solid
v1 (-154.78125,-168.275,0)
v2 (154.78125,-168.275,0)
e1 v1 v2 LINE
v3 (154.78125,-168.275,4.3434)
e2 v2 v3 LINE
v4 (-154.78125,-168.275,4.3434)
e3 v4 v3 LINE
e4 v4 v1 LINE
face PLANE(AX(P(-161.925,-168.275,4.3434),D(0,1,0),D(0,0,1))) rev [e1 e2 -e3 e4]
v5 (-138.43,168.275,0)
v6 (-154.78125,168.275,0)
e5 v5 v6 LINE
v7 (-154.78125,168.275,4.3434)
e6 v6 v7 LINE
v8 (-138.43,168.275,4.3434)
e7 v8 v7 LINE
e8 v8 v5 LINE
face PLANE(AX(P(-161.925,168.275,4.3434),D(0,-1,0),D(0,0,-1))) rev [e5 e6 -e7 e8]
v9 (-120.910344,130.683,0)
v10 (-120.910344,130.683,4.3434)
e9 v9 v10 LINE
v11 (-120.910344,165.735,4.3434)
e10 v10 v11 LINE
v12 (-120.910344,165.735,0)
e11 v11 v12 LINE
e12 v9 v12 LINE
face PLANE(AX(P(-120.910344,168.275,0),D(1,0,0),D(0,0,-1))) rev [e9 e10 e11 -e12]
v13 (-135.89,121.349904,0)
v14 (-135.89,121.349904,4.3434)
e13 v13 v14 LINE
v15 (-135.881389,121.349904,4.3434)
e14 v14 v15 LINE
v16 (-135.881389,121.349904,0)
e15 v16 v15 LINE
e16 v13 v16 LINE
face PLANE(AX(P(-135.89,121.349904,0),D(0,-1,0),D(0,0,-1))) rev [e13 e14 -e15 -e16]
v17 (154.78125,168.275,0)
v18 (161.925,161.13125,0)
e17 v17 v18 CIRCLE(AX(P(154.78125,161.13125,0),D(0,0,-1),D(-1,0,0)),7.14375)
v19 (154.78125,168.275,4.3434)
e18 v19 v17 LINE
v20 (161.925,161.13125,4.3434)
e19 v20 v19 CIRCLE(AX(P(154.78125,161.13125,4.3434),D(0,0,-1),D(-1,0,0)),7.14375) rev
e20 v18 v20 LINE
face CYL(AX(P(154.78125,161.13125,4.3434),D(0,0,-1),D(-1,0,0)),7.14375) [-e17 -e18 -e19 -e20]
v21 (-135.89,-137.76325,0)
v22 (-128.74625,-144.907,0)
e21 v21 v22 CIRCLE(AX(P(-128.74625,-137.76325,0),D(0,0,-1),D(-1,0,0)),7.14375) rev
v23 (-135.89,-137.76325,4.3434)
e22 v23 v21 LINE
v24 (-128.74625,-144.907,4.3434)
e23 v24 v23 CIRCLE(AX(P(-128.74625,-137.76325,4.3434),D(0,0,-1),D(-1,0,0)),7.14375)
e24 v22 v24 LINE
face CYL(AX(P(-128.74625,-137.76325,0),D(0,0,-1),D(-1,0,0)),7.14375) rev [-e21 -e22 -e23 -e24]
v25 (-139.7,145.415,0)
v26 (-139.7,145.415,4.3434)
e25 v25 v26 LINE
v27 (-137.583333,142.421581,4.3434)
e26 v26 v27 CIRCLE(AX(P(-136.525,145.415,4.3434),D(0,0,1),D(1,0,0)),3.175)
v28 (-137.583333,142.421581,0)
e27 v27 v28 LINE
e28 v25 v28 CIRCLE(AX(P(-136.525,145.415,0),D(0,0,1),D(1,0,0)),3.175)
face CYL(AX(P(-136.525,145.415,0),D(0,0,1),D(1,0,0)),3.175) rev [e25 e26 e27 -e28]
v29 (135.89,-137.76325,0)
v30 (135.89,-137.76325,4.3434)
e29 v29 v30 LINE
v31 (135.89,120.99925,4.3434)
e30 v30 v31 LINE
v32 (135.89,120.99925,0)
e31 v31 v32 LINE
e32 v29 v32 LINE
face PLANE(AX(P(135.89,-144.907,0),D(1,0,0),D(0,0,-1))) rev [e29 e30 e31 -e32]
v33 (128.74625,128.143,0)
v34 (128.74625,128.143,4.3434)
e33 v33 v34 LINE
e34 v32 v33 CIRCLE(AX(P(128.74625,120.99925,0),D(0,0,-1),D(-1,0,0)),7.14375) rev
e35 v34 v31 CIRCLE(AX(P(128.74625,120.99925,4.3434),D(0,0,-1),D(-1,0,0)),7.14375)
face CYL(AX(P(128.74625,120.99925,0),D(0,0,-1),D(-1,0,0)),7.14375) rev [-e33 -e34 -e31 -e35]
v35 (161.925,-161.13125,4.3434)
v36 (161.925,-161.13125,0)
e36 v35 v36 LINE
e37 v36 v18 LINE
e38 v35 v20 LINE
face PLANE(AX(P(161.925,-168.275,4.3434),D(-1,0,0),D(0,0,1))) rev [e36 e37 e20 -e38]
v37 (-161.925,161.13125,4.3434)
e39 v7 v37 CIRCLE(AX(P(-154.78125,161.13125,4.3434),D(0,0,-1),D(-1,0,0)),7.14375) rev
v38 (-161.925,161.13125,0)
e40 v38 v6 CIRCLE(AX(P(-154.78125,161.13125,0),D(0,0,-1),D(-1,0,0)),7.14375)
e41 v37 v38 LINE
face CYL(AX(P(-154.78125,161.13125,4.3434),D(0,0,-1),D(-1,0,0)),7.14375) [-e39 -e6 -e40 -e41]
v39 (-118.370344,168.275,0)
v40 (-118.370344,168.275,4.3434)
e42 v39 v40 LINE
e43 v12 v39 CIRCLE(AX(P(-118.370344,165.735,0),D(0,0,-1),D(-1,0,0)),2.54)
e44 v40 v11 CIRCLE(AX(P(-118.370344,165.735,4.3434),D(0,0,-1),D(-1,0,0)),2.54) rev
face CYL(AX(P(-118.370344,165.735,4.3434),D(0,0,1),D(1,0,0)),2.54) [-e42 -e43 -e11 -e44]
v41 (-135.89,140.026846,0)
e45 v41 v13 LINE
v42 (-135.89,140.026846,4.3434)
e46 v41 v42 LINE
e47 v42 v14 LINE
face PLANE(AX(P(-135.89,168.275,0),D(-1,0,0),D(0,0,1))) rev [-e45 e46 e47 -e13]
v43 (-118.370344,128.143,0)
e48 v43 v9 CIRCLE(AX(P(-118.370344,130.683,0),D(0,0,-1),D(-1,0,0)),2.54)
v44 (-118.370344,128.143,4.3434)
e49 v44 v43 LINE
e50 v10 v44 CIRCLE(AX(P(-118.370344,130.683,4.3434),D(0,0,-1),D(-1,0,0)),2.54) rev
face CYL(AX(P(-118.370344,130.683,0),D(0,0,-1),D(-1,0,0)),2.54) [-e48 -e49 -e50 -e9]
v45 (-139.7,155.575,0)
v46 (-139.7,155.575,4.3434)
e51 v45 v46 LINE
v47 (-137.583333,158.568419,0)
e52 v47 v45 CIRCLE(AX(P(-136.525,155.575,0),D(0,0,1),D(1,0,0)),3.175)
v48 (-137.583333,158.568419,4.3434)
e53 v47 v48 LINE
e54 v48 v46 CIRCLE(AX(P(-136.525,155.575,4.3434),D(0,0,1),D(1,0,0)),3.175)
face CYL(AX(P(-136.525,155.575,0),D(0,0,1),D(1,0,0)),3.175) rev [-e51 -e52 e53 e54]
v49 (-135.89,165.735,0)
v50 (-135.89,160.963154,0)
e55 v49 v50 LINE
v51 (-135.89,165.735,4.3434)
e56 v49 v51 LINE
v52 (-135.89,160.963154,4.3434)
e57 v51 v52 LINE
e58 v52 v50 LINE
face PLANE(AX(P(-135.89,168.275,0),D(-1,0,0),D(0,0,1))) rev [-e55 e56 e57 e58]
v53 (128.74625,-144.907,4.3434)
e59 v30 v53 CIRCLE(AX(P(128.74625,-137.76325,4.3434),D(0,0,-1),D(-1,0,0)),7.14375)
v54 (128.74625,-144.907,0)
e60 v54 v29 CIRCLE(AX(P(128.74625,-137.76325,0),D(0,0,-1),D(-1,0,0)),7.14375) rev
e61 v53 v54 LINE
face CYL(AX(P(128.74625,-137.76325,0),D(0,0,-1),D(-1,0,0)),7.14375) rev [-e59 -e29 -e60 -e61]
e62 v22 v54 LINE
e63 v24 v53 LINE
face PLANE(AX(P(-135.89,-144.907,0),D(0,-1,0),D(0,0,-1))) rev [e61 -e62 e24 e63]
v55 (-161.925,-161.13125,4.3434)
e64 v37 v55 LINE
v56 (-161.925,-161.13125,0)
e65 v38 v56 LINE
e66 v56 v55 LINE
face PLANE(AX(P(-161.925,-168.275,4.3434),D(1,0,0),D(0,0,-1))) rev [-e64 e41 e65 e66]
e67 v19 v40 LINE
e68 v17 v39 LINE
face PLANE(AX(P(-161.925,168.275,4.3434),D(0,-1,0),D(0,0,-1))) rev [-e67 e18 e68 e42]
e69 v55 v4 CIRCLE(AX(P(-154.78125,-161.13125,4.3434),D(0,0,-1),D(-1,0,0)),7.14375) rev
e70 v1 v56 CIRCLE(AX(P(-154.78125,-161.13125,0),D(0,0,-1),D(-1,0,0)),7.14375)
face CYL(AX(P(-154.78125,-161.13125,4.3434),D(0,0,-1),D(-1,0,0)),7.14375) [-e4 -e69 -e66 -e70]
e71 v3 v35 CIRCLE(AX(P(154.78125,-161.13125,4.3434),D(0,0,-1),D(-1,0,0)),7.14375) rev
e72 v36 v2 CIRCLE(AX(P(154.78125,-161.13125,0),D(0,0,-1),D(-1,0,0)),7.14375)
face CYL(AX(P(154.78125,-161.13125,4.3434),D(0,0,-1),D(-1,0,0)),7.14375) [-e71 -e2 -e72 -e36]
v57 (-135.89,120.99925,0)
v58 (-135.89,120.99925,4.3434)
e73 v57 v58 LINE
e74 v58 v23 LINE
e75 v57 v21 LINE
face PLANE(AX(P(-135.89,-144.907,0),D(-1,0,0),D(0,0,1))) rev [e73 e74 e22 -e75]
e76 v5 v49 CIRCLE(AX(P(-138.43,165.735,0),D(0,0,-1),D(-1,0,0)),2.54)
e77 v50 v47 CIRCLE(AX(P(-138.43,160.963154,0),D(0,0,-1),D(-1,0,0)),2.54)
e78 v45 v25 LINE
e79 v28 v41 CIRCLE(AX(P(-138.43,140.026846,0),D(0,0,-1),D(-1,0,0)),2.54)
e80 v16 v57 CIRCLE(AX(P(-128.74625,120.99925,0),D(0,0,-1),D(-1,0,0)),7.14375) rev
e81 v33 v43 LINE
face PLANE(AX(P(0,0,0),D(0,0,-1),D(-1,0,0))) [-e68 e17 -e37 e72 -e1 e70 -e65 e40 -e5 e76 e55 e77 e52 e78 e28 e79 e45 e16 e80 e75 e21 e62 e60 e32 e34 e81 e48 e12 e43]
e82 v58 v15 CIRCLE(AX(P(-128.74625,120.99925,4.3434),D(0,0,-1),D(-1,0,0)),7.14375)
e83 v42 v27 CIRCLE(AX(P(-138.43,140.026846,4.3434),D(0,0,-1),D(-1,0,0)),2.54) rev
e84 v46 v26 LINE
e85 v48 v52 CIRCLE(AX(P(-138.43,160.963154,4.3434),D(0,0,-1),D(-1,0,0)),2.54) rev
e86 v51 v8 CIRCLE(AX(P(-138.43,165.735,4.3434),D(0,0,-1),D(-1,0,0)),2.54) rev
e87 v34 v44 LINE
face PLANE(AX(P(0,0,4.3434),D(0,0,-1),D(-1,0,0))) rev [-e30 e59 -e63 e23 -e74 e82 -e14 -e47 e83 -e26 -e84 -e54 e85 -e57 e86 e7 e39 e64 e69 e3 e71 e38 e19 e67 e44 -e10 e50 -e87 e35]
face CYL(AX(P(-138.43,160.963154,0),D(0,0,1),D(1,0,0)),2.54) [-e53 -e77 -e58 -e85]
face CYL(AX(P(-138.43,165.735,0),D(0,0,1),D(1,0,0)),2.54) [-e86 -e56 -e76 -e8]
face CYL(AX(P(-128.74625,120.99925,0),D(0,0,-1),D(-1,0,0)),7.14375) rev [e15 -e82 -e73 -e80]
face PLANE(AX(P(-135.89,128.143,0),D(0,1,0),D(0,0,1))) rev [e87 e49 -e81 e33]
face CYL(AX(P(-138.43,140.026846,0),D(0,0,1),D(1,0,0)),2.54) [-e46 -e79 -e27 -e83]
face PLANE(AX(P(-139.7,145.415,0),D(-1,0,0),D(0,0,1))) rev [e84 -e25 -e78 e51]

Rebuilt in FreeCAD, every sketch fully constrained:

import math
import FreeCAD as App
import Part
import Sketcher

V = App.Vector
Q = App.Units.Quantity


def edges_at(feature, points):
    """Names of the edges that pass closest to the given points."""
    edges = feature.Shape.Edges
    near = lambda p: min(range(len(edges)), key=lambda i: edges[i].distToShape(Part.Vertex(*p))[0])
    return sorted({f"Edge{near(p) + 1}" for p in points})

doc = App.newDocument("Part")
body = doc.addObject("PartDesign::Body", "Body")

sketch1 = body.newObject("Sketcher::SketchObject", "Sketch")
sketch1.AttachmentSupport = (doc.getObject("XY_Plane"), [""])
sketch1.MapMode = "FlatFace"
sketch1.addGeometry(Part.LineSegment(V(-162, 168, 0), V(-162, -168, 0)), False)
sketch1.addGeometry(Part.LineSegment(V(-162, -168, 0), V(162, -168, 0)), False)
sketch1.addGeometry(Part.LineSegment(V(162, -168, 0), V(162, 168, 0)), False)
sketch1.addGeometry(Part.LineSegment(V(162, 168, 0), V(-162, 168, 0)), False)
sketch1.addConstraint(Sketcher.Constraint("Coincident", 0, 2, 1, 1))
sketch1.addConstraint(Sketcher.Constraint("Coincident", 1, 2, 2, 1))
sketch1.addConstraint(Sketcher.Constraint("Coincident", 2, 2, 3, 1))
sketch1.addConstraint(Sketcher.Constraint("Coincident", 3, 2, 0, 1))
sketch1.addConstraint(Sketcher.Constraint("Vertical", 0))
sketch1.addConstraint(Sketcher.Constraint("Horizontal", 1))
sketch1.addConstraint(Sketcher.Constraint("Vertical", 2))
sketch1.addConstraint(Sketcher.Constraint("Horizontal", 3))
sketch1.addConstraint(Sketcher.Constraint("Symmetric", 0, 2, 2, 2, -1, 1))
sketch1.addConstraint(Sketcher.Constraint("DistanceX", 1, 1, 1, 2, Q("12.75 in")))
sketch1.addConstraint(Sketcher.Constraint("DistanceY", 0, 2, 0, 1, Q("13.25 in")))
pad1 = body.newObject("PartDesign::Pad", "Pad")
pad1.Profile = sketch1
pad1.Length = Q("0.171 in")

sketch2 = body.newObject("Sketcher::SketchObject", "Sketch001")
sketch2.AttachmentSupport = (doc.getObject("XY_Plane"), [""])
sketch2.MapMode = "FlatFace"
sketch2.AttachmentOffset = App.Placement(V(0, 0, 0.171 * 25.4), App.Rotation())
sketch2.addGeometry(Part.LineSegment(V(-136, 128, 0), V(-136, -145, 0)), False)
sketch2.addGeometry(Part.LineSegment(V(-136, -145, 0), V(136, -145, 0)), False)
sketch2.addGeometry(Part.LineSegment(V(136, -145, 0), V(136, 128, 0)), False)
sketch2.addGeometry(Part.LineSegment(V(136, 128, 0), V(-136, 128, 0)), False)
sketch2.addConstraint(Sketcher.Constraint("Coincident", 0, 2, 1, 1))
sketch2.addConstraint(Sketcher.Constraint("Coincident", 1, 2, 2, 1))
sketch2.addConstraint(Sketcher.Constraint("Coincident", 2, 2, 3, 1))
sketch2.addConstraint(Sketcher.Constraint("Coincident", 3, 2, 0, 1))
sketch2.addConstraint(Sketcher.Constraint("Vertical", 0))
sketch2.addConstraint(Sketcher.Constraint("Horizontal", 1))
sketch2.addConstraint(Sketcher.Constraint("Vertical", 2))
sketch2.addConstraint(Sketcher.Constraint("Horizontal", 3))
sketch2.addConstraint(Sketcher.Constraint("DistanceX", 1, 1, 1, 2, Q("10.7 in")))
sketch2.addConstraint(Sketcher.Constraint("DistanceY", 0, 2, 0, 1, Q("10.75 in")))
sketch2.addConstraint(Sketcher.Constraint("DistanceX", 0, 2, -1, 1, Q("5.35 in")))
sketch2.addConstraint(Sketcher.Constraint("DistanceY", 0, 2, -1, 1, Q("5.705 in")))
pocket1 = body.newObject("PartDesign::Pocket", "Pocket")
pocket1.Profile = sketch2
pocket1.Type = "ThroughAll"
doc.recompute()

fillet = body.newObject("PartDesign::Fillet", "Fillet")
fillet.Base = (pocket1, edges_at(pocket1, [
    (135.89, 128.143, 2.172),
    (135.89, -144.907, 2.172),
    (-135.89, -144.907, 2.172),
    (-135.89, 128.143, 2.172),
    (161.925, -168.275, 2.172),
    (-161.925, -168.275, 2.172),
    (-161.925, 168.275, 2.172),
    (161.925, 168.275, 2.172),
]))
fillet.Radius = Q("0.28125 in")

sketch3 = body.newObject("Sketcher::SketchObject", "Sketch002")
sketch3.AttachmentSupport = (doc.getObject("XY_Plane"), [""])
sketch3.MapMode = "FlatFace"
sketch3.AttachmentOffset = App.Placement(V(0, 0, 0.171 * 25.4), App.Rotation())
sketch3.addGeometry(Part.LineSegment(V(-139.7, 155.6, 0), V(-139.7, 145.4, 0)), False)
sketch3.addGeometry(Part.ArcOfCircle(Part.Circle(V(-136.5, 145.4, 0), V(0, 0, 1), 3.2), math.radians(180), math.radians(360)), False)
sketch3.addGeometry(Part.LineSegment(V(-133.3, 145.4, 0), V(-133.3, 155.6, 0)), False)
sketch3.addGeometry(Part.ArcOfCircle(Part.Circle(V(-136.5, 155.6, 0), V(0, 0, 1), 3.2), math.radians(0), math.radians(180)), False)
sketch3.addConstraint(Sketcher.Constraint("Tangent", 0, 2, 1, 1))
sketch3.addConstraint(Sketcher.Constraint("Tangent", 1, 2, 2, 1))
sketch3.addConstraint(Sketcher.Constraint("Tangent", 2, 2, 3, 1))
sketch3.addConstraint(Sketcher.Constraint("Tangent", 3, 2, 0, 1))
sketch3.addConstraint(Sketcher.Constraint("Vertical", 0))
sketch3.addConstraint(Sketcher.Constraint("Vertical", 2))
sketch3.addConstraint(Sketcher.Constraint("DistanceY", 0, 2, 0, 1, Q("0.4 in")))
sketch3.addConstraint(Sketcher.Constraint("Radius", 1, Q("0.125 in")))
sketch3.addConstraint(Sketcher.Constraint("DistanceX", 0, 2, -1, 1, Q("5.5 in")))
sketch3.addConstraint(Sketcher.Constraint("DistanceY", -1, 1, 1, 3, Q("5.725 in")))
pocket2 = body.newObject("PartDesign::Pocket", "Pocket001")
pocket2.Profile = sketch3
pocket2.Type = "ThroughAll"

sketch4 = body.newObject("Sketcher::SketchObject", "Sketch003")
sketch4.AttachmentSupport = (doc.getObject("XY_Plane"), [""])
sketch4.MapMode = "FlatFace"
sketch4.AttachmentOffset = App.Placement(V(0, 0, 0.171 * 25.4), App.Rotation())
sketch4.addGeometry(Part.LineSegment(V(-136, 168, 0), V(-136, 121, 0)), False)
sketch4.addGeometry(Part.LineSegment(V(-136, 121, 0), V(-121, 121, 0)), False)
sketch4.addGeometry(Part.LineSegment(V(-121, 121, 0), V(-121, 168, 0)), False)
sketch4.addGeometry(Part.LineSegment(V(-121, 168, 0), V(-136, 168, 0)), False)
sketch4.addConstraint(Sketcher.Constraint("Coincident", 0, 2, 1, 1))
sketch4.addConstraint(Sketcher.Constraint("Coincident", 1, 2, 2, 1))
sketch4.addConstraint(Sketcher.Constraint("Coincident", 2, 2, 3, 1))
sketch4.addConstraint(Sketcher.Constraint("Coincident", 3, 2, 0, 1))
sketch4.addConstraint(Sketcher.Constraint("Vertical", 0))
sketch4.addConstraint(Sketcher.Constraint("Horizontal", 1))
sketch4.addConstraint(Sketcher.Constraint("Vertical", 2))
sketch4.addConstraint(Sketcher.Constraint("Horizontal", 3))
sketch4.addConstraint(Sketcher.Constraint("DistanceX", 0, 2, -1, 1, Q("5.35 in")))
sketch4.addConstraint(Sketcher.Constraint("DistanceY", -1, 1, 2, 2, Q("6.625 in")))
sketch4.addConstraint(Sketcher.Constraint("DistanceX", 1, 1, 1, 2, 14.979656))
sketch4.addConstraint(Sketcher.Constraint("DistanceY", 0, 2, 0, 1, 46.925096))
pocket3 = body.newObject("PartDesign::Pocket", "Pocket002")
pocket3.Profile = sketch4
pocket3.Type = "ThroughAll"
doc.recompute()

fillet2 = body.newObject("PartDesign::Fillet", "Fillet001")
fillet2.Base = (pocket3, edges_at(pocket3, [
    (-120.91, 168.275, 2.172),
    (-135.89, 142.304, 2.172),
    (-135.89, 168.275, 2.172),
    (-135.89, 158.686, 2.172),
    (-120.91, 128.143, 2.172),
]))
fillet2.Radius = Q("0.1 in")

doc.recompute()
